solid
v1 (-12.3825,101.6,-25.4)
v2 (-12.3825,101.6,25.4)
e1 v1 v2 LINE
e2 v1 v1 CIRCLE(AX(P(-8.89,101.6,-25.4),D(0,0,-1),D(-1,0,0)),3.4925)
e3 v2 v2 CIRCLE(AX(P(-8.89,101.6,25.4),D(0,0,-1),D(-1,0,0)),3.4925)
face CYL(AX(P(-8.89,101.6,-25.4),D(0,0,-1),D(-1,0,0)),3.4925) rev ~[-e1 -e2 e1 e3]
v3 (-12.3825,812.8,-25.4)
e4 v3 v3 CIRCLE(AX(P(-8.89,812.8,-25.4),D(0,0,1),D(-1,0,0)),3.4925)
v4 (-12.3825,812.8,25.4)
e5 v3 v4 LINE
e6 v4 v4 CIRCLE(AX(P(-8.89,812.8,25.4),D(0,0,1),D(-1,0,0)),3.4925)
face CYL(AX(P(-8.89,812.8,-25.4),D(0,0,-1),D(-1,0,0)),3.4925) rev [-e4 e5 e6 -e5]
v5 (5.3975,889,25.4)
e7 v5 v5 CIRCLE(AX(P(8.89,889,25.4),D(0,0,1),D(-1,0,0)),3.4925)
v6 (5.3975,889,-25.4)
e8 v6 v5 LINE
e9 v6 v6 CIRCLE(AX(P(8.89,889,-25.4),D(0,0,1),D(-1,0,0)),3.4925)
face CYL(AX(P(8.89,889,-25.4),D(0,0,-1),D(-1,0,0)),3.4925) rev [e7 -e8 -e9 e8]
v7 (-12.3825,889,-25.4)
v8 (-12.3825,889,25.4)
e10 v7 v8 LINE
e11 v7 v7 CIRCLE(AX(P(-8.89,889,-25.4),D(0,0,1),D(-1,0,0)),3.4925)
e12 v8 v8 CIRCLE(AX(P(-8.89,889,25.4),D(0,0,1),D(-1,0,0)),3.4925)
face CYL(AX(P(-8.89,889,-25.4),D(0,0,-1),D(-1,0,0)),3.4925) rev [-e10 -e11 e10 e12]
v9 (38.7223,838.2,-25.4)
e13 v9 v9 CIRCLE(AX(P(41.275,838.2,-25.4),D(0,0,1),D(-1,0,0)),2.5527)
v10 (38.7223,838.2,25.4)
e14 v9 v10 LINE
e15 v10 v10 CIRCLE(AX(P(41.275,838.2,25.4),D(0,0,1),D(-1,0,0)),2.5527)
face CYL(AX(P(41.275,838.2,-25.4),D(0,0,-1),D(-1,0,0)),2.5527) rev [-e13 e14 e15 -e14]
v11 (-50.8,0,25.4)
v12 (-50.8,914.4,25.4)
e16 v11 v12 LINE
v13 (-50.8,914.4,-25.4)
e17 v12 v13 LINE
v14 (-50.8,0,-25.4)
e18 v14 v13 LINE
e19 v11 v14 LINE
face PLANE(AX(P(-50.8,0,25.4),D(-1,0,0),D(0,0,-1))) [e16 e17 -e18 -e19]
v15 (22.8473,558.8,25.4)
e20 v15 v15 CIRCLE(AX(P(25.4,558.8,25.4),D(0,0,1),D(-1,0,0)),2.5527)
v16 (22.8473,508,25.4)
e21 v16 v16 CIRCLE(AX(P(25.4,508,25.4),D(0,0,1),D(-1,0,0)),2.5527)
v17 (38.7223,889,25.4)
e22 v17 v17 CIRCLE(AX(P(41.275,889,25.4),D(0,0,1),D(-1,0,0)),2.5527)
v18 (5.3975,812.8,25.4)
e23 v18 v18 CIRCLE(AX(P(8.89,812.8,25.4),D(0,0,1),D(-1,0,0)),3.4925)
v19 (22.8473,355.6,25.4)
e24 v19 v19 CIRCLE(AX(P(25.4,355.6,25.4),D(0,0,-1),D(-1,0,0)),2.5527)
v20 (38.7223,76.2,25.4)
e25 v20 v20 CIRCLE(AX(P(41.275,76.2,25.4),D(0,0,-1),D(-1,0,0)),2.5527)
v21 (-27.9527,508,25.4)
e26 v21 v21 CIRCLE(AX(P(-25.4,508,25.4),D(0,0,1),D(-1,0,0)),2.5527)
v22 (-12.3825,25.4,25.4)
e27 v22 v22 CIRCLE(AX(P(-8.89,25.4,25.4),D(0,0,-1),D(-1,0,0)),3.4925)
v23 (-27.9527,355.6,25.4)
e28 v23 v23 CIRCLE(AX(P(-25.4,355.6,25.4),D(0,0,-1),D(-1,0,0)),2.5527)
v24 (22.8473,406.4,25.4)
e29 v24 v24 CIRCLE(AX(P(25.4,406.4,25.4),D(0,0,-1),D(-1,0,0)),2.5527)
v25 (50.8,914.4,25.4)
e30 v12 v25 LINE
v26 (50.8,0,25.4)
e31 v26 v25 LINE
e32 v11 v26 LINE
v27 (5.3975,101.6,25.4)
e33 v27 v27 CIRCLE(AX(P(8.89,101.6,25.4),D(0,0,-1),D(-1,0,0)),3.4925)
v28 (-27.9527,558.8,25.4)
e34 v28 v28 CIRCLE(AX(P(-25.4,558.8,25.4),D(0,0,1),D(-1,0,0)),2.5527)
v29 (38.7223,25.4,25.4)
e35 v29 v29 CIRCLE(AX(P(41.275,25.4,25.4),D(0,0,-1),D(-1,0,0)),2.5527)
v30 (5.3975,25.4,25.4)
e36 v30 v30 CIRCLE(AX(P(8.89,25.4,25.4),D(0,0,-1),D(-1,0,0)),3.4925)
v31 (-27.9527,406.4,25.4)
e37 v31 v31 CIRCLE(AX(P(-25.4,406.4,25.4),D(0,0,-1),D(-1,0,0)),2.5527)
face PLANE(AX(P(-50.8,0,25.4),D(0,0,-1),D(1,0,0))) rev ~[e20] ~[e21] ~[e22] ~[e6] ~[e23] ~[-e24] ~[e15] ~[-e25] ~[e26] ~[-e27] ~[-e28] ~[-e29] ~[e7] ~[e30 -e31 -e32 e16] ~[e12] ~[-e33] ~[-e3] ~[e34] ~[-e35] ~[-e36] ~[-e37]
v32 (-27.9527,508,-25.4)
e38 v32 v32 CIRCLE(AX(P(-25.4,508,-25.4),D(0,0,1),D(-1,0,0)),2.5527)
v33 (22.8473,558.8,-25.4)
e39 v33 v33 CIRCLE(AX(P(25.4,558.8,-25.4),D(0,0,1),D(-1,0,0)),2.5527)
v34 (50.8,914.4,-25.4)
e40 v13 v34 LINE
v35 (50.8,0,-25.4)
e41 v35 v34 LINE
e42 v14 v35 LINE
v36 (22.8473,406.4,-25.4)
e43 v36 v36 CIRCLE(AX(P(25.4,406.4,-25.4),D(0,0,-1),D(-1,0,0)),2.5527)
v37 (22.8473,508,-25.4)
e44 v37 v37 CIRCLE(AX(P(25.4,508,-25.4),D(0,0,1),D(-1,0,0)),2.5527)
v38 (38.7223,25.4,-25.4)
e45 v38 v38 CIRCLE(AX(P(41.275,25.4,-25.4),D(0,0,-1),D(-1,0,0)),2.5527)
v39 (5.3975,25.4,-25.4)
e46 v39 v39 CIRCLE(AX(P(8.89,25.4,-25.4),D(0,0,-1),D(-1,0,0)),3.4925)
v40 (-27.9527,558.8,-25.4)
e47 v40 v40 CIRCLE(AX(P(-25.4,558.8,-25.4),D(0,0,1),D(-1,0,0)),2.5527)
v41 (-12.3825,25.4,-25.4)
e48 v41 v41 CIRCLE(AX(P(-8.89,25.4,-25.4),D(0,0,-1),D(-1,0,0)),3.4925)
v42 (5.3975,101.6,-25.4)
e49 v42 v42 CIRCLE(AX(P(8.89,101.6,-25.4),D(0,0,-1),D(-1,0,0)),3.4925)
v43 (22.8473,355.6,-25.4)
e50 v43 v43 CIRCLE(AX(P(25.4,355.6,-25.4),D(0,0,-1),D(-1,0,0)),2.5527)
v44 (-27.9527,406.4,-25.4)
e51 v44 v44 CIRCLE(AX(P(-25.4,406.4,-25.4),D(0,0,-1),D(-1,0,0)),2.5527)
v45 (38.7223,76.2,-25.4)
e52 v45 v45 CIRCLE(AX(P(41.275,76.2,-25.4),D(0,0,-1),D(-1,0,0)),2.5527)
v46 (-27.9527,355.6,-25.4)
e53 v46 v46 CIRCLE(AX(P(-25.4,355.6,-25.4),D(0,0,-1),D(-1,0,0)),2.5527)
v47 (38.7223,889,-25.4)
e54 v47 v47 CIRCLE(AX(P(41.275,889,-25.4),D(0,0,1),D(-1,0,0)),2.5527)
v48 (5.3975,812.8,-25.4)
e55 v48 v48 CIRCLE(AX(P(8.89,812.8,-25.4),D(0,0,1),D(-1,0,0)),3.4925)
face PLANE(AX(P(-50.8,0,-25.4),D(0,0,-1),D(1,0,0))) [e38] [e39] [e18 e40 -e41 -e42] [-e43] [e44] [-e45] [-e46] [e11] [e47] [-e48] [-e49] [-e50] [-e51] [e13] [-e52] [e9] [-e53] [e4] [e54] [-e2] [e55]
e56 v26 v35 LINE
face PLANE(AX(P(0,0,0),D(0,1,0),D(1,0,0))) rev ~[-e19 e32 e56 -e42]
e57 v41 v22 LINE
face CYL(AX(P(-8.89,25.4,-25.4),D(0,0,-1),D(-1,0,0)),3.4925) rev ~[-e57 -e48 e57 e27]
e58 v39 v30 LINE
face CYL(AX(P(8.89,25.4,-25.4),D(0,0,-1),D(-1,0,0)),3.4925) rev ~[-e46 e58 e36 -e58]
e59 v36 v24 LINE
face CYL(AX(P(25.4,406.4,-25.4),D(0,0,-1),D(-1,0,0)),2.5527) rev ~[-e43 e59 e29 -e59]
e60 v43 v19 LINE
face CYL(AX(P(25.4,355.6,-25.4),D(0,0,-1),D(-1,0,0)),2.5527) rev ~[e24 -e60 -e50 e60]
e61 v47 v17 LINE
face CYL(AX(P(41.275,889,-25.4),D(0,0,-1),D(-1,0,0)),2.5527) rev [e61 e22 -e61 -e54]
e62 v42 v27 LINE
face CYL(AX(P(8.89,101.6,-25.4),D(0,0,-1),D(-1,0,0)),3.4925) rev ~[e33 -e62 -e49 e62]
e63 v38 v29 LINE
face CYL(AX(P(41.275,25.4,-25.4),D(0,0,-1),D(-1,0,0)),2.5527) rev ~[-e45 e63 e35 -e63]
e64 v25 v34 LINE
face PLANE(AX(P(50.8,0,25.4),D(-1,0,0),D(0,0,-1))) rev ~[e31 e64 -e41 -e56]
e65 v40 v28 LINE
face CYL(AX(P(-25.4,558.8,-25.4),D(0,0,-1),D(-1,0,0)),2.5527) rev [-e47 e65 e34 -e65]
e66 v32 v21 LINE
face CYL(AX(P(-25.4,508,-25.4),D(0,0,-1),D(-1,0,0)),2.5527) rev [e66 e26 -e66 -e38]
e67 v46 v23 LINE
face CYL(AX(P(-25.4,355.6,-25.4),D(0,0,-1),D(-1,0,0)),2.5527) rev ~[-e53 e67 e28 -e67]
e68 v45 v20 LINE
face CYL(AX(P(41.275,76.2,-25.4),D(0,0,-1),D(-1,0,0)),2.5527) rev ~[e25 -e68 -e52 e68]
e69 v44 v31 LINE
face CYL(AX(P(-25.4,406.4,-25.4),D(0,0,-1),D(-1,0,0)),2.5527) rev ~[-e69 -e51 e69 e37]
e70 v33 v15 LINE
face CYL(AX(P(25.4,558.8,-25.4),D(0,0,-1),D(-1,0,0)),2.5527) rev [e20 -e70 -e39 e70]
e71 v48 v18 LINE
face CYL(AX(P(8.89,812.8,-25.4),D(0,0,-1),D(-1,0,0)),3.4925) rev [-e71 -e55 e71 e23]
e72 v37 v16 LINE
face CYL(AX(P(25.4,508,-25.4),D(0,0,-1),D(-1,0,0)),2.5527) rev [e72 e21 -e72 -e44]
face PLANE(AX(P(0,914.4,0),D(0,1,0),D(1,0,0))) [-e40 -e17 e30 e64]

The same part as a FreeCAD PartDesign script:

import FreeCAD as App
import Part
import Sketcher
Q = App.Units.Quantity

doc = App.newDocument("Part")
body = doc.addObject("PartDesign::Body", "Body")

# Sketch on XZ plane
sketch1 = body.newObject("Sketcher::SketchObject", "Sketch")
sketch1.AttachmentSupport = (doc.getObject("XZ_Plane"), [""])
sketch1.MapMode = "FlatFace"
sketch1.addGeometry(Part.LineSegment(App.Vector(-51, -25, 0), App.Vector(-51, 25, 0)), False)
sketch1.addGeometry(Part.LineSegment(App.Vector(-51, 25, 0), App.Vector(51, 25, 0)), False)
sketch1.addGeometry(Part.LineSegment(App.Vector(51, 25, 0), App.Vector(51, -25, 0)), False)
sketch1.addGeometry(Part.LineSegment(App.Vector(51, -25, 0), App.Vector(-51, -25, 0)), False)
sketch1.addConstraint(Sketcher.Constraint("Coincident", 0, 2, 1, 1))
sketch1.addConstraint(Sketcher.Constraint("Coincident", 1, 2, 2, 1))
sketch1.addConstraint(Sketcher.Constraint("Coincident", 2, 2, 3, 1))
sketch1.addConstraint(Sketcher.Constraint("Coincident", 3, 2, 0, 1))
sketch1.addConstraint(Sketcher.Constraint("Vertical", 0))
sketch1.addConstraint(Sketcher.Constraint("Horizontal", 1))
sketch1.addConstraint(Sketcher.Constraint("Vertical", 2))
sketch1.addConstraint(Sketcher.Constraint("Horizontal", 3))
sketch1.addConstraint(Sketcher.Constraint("Symmetric", 0, 2, 2, 2, -1, 1))
sketch1.addConstraint(Sketcher.Constraint("DistanceX", 1, 1, 1, 2, Q("4 in")))
sketch1.addConstraint(Sketcher.Constraint("DistanceY", 0, 1, 0, 2, Q("2 in")))
pad1 = body.newObject("PartDesign::Pad", "Pad")
pad1.Profile = sketch1
pad1.Length = Q("36 in")
pad1.Reversed = True

# Sketch on XY plane
sketch2 = body.newObject("Sketcher::SketchObject", "Sketch001")
sketch2.AttachmentSupport = (doc.getObject("XY_Plane"), [""])
sketch2.MapMode = "FlatFace"
sketch2.AttachmentOffset = App.Placement(App.Vector(0, 0, -1 * 25.4), App.Rotation())
sketch2.addGeometry(Part.Circle(App.Vector(8.9, 25.4, 0), App.Vector(0, 0, 1), 3.5), False)
sketch2.addGeometry(Part.Circle(App.Vector(-8.9, 25.4, 0), App.Vector(0, 0, 1), 3.5), False)
sketch2.addGeometry(Part.Circle(App.Vector(-8.9, 101.6, 0), App.Vector(0, 0, 1), 3.5), False)
sketch2.addGeometry(Part.Circle(App.Vector(8.9, 101.6, 0), App.Vector(0, 0, 1), 3.5), False)
sketch2.addConstraint(Sketcher.Constraint("Equal", 0, 1))
sketch2.addConstraint(Sketcher.Constraint("Equal", 1, 2))
sketch2.addConstraint(Sketcher.Constraint("Equal", 2, 3))
sketch2.addConstraint(Sketcher.Constraint("Symmetric", 0, 3, 1, 3, -2))
sketch2.addConstraint(Sketcher.Constraint("Symmetric", 2, 3, 3, 3, -2))
sketch2.addConstraint(Sketcher.Constraint("Vertical", 1, 3, 2, 3))
sketch2.addConstraint(Sketcher.Constraint("Diameter", 0, Q("0.275 in")))
sketch2.addConstraint(Sketcher.Constraint("DistanceY", -1, 1, 0, 3, Q("1 in")))
sketch2.addConstraint(Sketcher.Constraint("DistanceY", -1, 1, 2, 3, Q("4 in")))
sketch2.addConstraint(Sketcher.Constraint("DistanceX", 1, 3, 0, 3, Q("0.7 in")))
pocket1 = body.newObject("PartDesign::Pocket", "Pocket")
pocket1.Profile = sketch2
pocket1.Length = Q("2 in")
pocket1.Reversed = True

# Sketch on XY plane
sketch3 = body.newObject("Sketcher::SketchObject", "Sketch002")
sketch3.AttachmentSupport = (doc.getObject("XY_Plane"), [""])
sketch3.MapMode = "FlatFace"
sketch3.AttachmentOffset = App.Placement(App.Vector(0, 0, -1 * 25.4), App.Rotation())
sketch3.addGeometry(Part.Circle(App.Vector(41.3, 76.2, 0), App.Vector(0, 0, 1), 2.6), False)
sketch3.addGeometry(Part.Circle(App.Vector(41.3, 25.4, 0), App.Vector(0, 0, 1), 2.6), False)
sketch3.addConstraint(Sketcher.Constraint("Equal", 0, 1))
sketch3.addConstraint(Sketcher.Constraint("Vertical", 0, 3, 1, 3))
sketch3.addConstraint(Sketcher.Constraint("Diameter", 0, Q("0.201 in")))
sketch3.addConstraint(Sketcher.Constraint("DistanceY", -1, 1, 0, 3, Q("3 in")))
sketch3.addConstraint(Sketcher.Constraint("DistanceY", -1, 1, 1, 3, Q("1 in")))
sketch3.addConstraint(Sketcher.Constraint("DistanceX", -1, 1, 0, 3, Q("1.625 in")))
pocket2 = body.newObject("PartDesign::Pocket", "Pocket001")
pocket2.Profile = sketch3
pocket2.Length = Q("2 in")
pocket2.Reversed = True
doc.recompute()

datumplane = body.newObject("PartDesign::Plane", "DatumPlane")
datumplane.AttachmentSupport = (doc.getObject("XZ_Plane"), [""])
datumplane.MapMode = "FlatFace"
datumplane.AttachmentOffset = App.Placement(App.Vector(0, 0, -18 * 25.4), App.Rotation())
mirrored = body.newObject("PartDesign::Mirrored", "Mirrored")
mirrored.Originals = [pocket1, pocket2]
mirrored.MirrorPlane = (datumplane, [""])
body.Tip = mirrored

# Sketch on XY plane
sketch4 = body.newObject("Sketcher::SketchObject", "Sketch003")
sketch4.AttachmentSupport = (doc.getObject("XY_Plane"), [""])
sketch4.MapMode = "FlatFace"
sketch4.AttachmentOffset = App.Placement(App.Vector(0, 0, -1 * 25.4), App.Rotation())
sketch4.addGeometry(Part.Circle(App.Vector(25.4, 406.4, 0), App.Vector(0, 0, 1), 2.6), False)
sketch4.addGeometry(Part.Circle(App.Vector(-25.4, 406.4, 0), App.Vector(0, 0, 1), 2.6), False)
sketch4.addGeometry(Part.Circle(App.Vector(-25.4, 355.6, 0), App.Vector(0, 0, 1), 2.6), False)
sketch4.addGeometry(Part.Circle(App.Vector(25.4, 355.6, 0), App.Vector(0, 0, 1), 2.6), False)
sketch4.addConstraint(Sketcher.Constraint("Equal", 0, 1))
sketch4.addConstraint(Sketcher.Constraint("Equal", 1, 2))
sketch4.addConstraint(Sketcher.Constraint("Equal", 2, 3))
sketch4.addConstraint(Sketcher.Constraint("Symmetric", 0, 3, 1, 3, -2))
sketch4.addConstraint(Sketcher.Constraint("Symmetric", 2, 3, 3, 3, -2))
sketch4.addConstraint(Sketcher.Constraint("Vertical", 1, 3, 2, 3))
sketch4.addConstraint(Sketcher.Constraint("Diameter", 0, Q("0.201 in")))
sketch4.addConstraint(Sketcher.Constraint("DistanceX", -1, 1, 0, 3, Q("1 in")))
sketch4.addConstraint(Sketcher.Constraint("DistanceY", -1, 1, 0, 3, Q("16 in")))
sketch4.addConstraint(Sketcher.Constraint("DistanceY", -1, 1, 2, 3, Q("14 in")))
pocket3 = body.newObject("PartDesign::Pocket", "Pocket002")
pocket3.Profile = sketch4
pocket3.Length = Q("2 in")
pocket3.Reversed = True
doc.recompute()

datumplane2 = body.newObject("PartDesign::Plane", "DatumPlane001")
datumplane2.AttachmentSupport = (doc.getObject("XZ_Plane"), [""])
datumplane2.MapMode = "FlatFace"
datumplane2.AttachmentOffset = App.Placement(App.Vector(0, 0, -18 * 25.4), App.Rotation())
mirrored2 = body.newObject("PartDesign::Mirrored", "Mirrored001")
mirrored2.Originals = [pocket3]
mirrored2.MirrorPlane = (datumplane2, [""])
body.Tip = mirrored2

doc.recompute()
